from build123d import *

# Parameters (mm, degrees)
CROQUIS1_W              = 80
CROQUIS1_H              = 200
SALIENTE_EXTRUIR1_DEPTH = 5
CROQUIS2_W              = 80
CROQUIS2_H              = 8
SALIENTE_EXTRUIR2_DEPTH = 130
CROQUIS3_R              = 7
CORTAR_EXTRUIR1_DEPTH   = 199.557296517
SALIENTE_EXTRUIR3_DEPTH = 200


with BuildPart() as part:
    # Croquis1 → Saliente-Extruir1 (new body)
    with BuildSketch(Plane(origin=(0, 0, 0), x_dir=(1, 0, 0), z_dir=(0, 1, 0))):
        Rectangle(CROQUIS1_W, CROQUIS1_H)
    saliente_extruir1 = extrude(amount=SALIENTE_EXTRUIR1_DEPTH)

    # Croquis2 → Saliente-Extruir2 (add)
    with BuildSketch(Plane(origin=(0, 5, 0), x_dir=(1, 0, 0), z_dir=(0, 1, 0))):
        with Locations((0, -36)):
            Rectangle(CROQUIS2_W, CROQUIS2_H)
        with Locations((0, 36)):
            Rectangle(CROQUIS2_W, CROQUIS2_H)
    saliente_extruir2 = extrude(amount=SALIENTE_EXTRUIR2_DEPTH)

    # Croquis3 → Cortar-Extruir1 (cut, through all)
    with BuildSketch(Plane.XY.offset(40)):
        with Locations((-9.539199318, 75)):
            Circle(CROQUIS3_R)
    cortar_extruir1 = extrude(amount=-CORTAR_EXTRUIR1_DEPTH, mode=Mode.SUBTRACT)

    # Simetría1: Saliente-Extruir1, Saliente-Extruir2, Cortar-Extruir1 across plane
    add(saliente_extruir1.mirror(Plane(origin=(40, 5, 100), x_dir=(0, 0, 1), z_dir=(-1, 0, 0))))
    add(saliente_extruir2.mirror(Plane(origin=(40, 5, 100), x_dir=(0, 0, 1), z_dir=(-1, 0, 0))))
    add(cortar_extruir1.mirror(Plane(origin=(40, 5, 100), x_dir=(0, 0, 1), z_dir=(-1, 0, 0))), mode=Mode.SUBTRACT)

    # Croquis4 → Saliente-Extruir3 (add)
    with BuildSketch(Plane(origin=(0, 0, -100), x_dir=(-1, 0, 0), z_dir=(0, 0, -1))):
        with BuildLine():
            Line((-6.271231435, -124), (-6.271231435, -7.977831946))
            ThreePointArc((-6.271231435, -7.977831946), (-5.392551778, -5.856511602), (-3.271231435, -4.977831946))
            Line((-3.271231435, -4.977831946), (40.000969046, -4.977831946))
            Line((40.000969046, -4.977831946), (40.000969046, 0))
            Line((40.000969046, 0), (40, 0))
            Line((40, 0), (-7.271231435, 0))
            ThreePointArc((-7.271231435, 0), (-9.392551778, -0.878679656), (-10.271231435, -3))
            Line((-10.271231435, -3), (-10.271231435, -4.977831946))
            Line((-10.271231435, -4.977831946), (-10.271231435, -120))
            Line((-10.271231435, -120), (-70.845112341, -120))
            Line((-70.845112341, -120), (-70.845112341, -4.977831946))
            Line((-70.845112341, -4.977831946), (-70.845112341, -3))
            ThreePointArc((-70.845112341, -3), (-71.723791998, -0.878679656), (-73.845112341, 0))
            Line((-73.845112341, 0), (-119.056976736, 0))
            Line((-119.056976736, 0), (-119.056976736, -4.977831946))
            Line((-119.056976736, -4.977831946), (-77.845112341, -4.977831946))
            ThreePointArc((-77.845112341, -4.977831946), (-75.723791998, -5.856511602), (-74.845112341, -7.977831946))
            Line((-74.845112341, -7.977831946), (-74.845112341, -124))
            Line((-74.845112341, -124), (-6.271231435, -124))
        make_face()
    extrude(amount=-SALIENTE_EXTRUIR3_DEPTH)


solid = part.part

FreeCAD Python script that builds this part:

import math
import FreeCAD as App
import Part
import Sketcher
from FreeCAD import Vector
Q = App.Units.Quantity


def add_polygon(sketch, points):
    """Adds a closed chain of lines whose ends are joined by coincident constraints."""
    first, n = sketch.GeometryCount, len(points)
    for a, b in zip(points, points[1:] + points[:1]):
        sketch.addGeometry(Part.LineSegment(App.Vector(*a, 0), App.Vector(*b, 0)), False)
    for i in range(n):
        sketch.addConstraint(Sketcher.Constraint("Coincident", first + i, 2, first + (i + 1) % n, 1))

doc = App.newDocument("Part")
params = doc.addObject("Spreadsheet::Sheet", "Params")
for row, (alias, value) in enumerate([
    ("sketch1_width", "80 mm"),
    ("sketch1_height", "200 mm"),
    ("pad1_length", "5 mm"),
    ("sketch2_width", "80 mm"),
    ("sketch2_height", "8 mm"),
    ("pad2_length", "130 mm"),
    ("sketch3_diameter", "14 mm"),
    ("sketch4_radius", "3 mm"),
    ("sketch4_height", "117 mm"),
    ("pad3_length", "200 mm"),
], start=1):
    params.set(f"A{row}", alias)
    params.set(f"B{row}", "=" + value)
    params.setAlias(f"B{row}", alias)

body = doc.addObject("PartDesign::Body", "Body")

sketch1 = body.newObject("Sketcher::SketchObject", "Sketch")
sketch1.AttachmentSupport = (doc.getObject("XZ_Plane"), [""])
sketch1.MapMode = "FlatFace"
add_polygon(sketch1, [(-40, -100), (-40, 100), (40, 100), (40, -100)])
sketch1.addConstraint(Sketcher.Constraint("Vertical", 0))
sketch1.addConstraint(Sketcher.Constraint("Horizontal", 1))
sketch1.addConstraint(Sketcher.Constraint("Vertical", 2))
sketch1.addConstraint(Sketcher.Constraint("Horizontal", 3))
sketch1.addConstraint(Sketcher.Constraint("Symmetric", 0, 2, 2, 2, -1, 1))
sketch1.addConstraint(Sketcher.Constraint("DistanceX", 1, 1, 1, 2, Q("80 mm")))
sketch1.addConstraint(Sketcher.Constraint("DistanceY", 0, 1, 0, 2, Q("200 mm")))
sketch1.setExpression("Constraints[9]", "Params.sketch1_width")
sketch1.setExpression("Constraints[10]", "Params.sketch1_height")
pad1 = body.newObject("PartDesign::Pad", "Pad")
pad1.Profile = sketch1
pad1.setExpression("Length", "Params.pad1_length")
pad1.Reversed = True

sketch2 = body.newObject("Sketcher::SketchObject", "Sketch001")
sketch2.AttachmentSupport = (doc.getObject("XZ_Plane"), [""])
sketch2.MapMode = "FlatFace"
sketch2.AttachmentOffset = App.Placement(Vector(0, 0, -5), App.Rotation())
add_polygon(sketch2, [(-40, 32), (-40, 40), (40, 40), (40, 32)])
add_polygon(sketch2, [(-40, -40), (-40, -32), (40, -32), (40, -40)])
sketch2.addConstraint(Sketcher.Constraint("Vertical", 0))
sketch2.addConstraint(Sketcher.Constraint("Horizontal", 1))
sketch2.addConstraint(Sketcher.Constraint("Vertical", 2))
sketch2.addConstraint(Sketcher.Constraint("Horizontal", 3))
sketch2.addConstraint(Sketcher.Constraint("Vertical", 4))
sketch2.addConstraint(Sketcher.Constraint("Horizontal", 5))
sketch2.addConstraint(Sketcher.Constraint("Vertical", 6))
sketch2.addConstraint(Sketcher.Constraint("Horizontal", 7))
sketch2.addConstraint(Sketcher.Constraint("Symmetric", 2, 2, 4, 2, -1, 1))
sketch2.addConstraint(Sketcher.Constraint("Symmetric", 0, 2, 6, 2, -1, 1))
sketch2.addConstraint(Sketcher.Constraint("Vertical", 3, 2, 4, 2))
sketch2.addConstraint(Sketcher.Constraint("DistanceX", 1, 1, 1, 2, Q("80 mm")))
sketch2.addConstraint(Sketcher.Constraint("DistanceY", 0, 1, 0, 2, Q("8 mm")))
sketch2.addConstraint(Sketcher.Constraint("DistanceY", -1, 1, 0, 2, Q("40 mm")))
sketch2.setExpression("Constraints[19]", "Params.sketch2_width")
sketch2.setExpression("Constraints[20]", "Params.sketch2_height")
pad2 = body.newObject("PartDesign::Pad", "Pad001")
pad2.Profile = sketch2
pad2.setExpression("Length", "Params.pad2_length")
pad2.Reversed = True

sketch3 = body.newObject("Sketcher::SketchObject", "Sketch002")
sketch3.AttachmentSupport = (doc.getObject("XY_Plane"), [""])
sketch3.MapMode = "FlatFace"
sketch3.AttachmentOffset = App.Placement(Vector(0, 0, 40), App.Rotation())
sketch3.addGeometry(Part.Circle(Vector(-10, 75, 0), Vector(0, 0, 1), 7), False)
sketch3.addConstraint(Sketcher.Constraint("Diameter", 0, Q("14 mm")))
sketch3.addConstraint(Sketcher.Constraint("DistanceY", -1, 1, 0, 3, Q("75 mm")))
sketch3.addConstraint(Sketcher.Constraint("DistanceX", 0, 3, -1, 1, Q("9.539199 mm")))
sketch3.setExpression("Constraints[0]", "Params.sketch3_diameter")
pocket1 = body.newObject("PartDesign::Pocket", "Pocket")
pocket1.Profile = sketch3
pocket1.Type = "ThroughAll"
doc.recompute()

datumplane = body.newObject("PartDesign::Plane", "DatumPlane")
datumplane.AttachmentSupport = (doc.getObject("YZ_Plane"), [""])
datumplane.MapMode = "FlatFace"
datumplane.AttachmentOffset = App.Placement(Vector(0, 0, 40), App.Rotation())
mirrored = body.newObject("PartDesign::Mirrored", "Mirrored")
mirrored.Originals = [pad1, pad2, pocket1]
mirrored.MirrorPlane = (datumplane, [""])
body.Tip = mirrored

sketch4 = body.newObject("Sketcher::SketchObject", "Sketch003")
sketch4.AttachmentSupport = (doc.getObject("XY_Plane"), [""])
sketch4.MapMode = "FlatFace"
sketch4.AttachmentOffset = App.Placement(Vector(0, 0, -100), App.Rotation())
sketch4.addGeometry(Part.LineSegment(Vector(6.3, -124, 0), Vector(6.3, -8, 0)), False)
sketch4.addGeometry(Part.ArcOfCircle(Part.Circle(Vector(3.3, -8, 0), Vector(0, 0, 1), 3), math.radians(0), math.radians(90)), False)
sketch4.addGeometry(Part.LineSegment(Vector(3.3, -5, 0), Vector(-40, -5, 0)), False)
sketch4.addGeometry(Part.LineSegment(Vector(-40, -5, 0), Vector(-40, 0, 0)), False)
sketch4.addGeometry(Part.LineSegment(Vector(-40, 0, 0), Vector(7.3, 0, 0)), False)
sketch4.addGeometry(Part.ArcOfCircle(Part.Circle(Vector(7.3, -3, 0), Vector(0, 0, 1), 3), math.radians(0), math.radians(90)), False)
sketch4.addGeometry(Part.LineSegment(Vector(10.3, -3, 0), Vector(10.3, -120, 0)), False)
sketch4.addGeometry(Part.LineSegment(Vector(10.3, -120, 0), Vector(70.8, -120, 0)), False)
sketch4.addGeometry(Part.LineSegment(Vector(70.8, -120, 0), Vector(70.8, -3, 0)), False)
sketch4.addGeometry(Part.ArcOfCircle(Part.Circle(Vector(73.8, -3, 0), Vector(0, 0, 1), 3), math.radians(90), math.radians(180)), False)
sketch4.addGeometry(Part.LineSegment(Vector(73.8, 0, 0), Vector(119.1, 0, 0)), False)
sketch4.addGeometry(Part.LineSegment(Vector(119.1, 0, 0), Vector(119.1, -5, 0)), False)
sketch4.addGeometry(Part.LineSegment(Vector(119.1, -5, 0), Vector(77.8, -5, 0)), False)
sketch4.addGeometry(Part.ArcOfCircle(Part.Circle(Vector(77.8, -8, 0), Vector(0, 0, 1), 3), math.radians(90), math.radians(180)), False)
sketch4.addGeometry(Part.LineSegment(Vector(74.8, -8, 0), Vector(74.8, -124, 0)), False)
sketch4.addGeometry(Part.LineSegment(Vector(74.8, -124, 0), Vector(6.3, -124, 0)), False)
sketch4.addConstraint(Sketcher.Constraint("Tangent", 0, 2, 1, 1))
sketch4.addConstraint(Sketcher.Constraint("Tangent", 1, 2, 2, 1))
sketch4.addConstraint(Sketcher.Constraint("Coincident", 2, 2, 3, 1))
sketch4.addConstraint(Sketcher.Constraint("Coincident", 3, 2, 4, 1))
sketch4.addConstraint(Sketcher.Constraint("Tangent", 4, 2, 5, 2))
sketch4.addConstraint(Sketcher.Constraint("Tangent", 5, 1, 6, 1))
sketch4.addConstraint(Sketcher.Constraint("Coincident", 6, 2, 7, 1))
sketch4.addConstraint(Sketcher.Constraint("Coincident", 7, 2, 8, 1))
sketch4.addConstraint(Sketcher.Constraint("Tangent", 8, 2, 9, 2))
sketch4.addConstraint(Sketcher.Constraint("Tangent", 9, 1, 10, 1))
sketch4.addConstraint(Sketcher.Constraint("Coincident", 10, 2, 11, 1))
sketch4.addConstraint(Sketcher.Constraint("Coincident", 11, 2, 12, 1))
sketch4.addConstraint(Sketcher.Constraint("Tangent", 12, 2, 13, 1))
sketch4.addConstraint(Sketcher.Constraint("Tangent", 13, 2, 14, 1))
sketch4.addConstraint(Sketcher.Constraint("Coincident", 14, 2, 15, 1))
sketch4.addConstraint(Sketcher.Constraint("Coincident", 15, 2, 0, 1))
sketch4.addConstraint(Sketcher.Constraint("Vertical", 0))
sketch4.addConstraint(Sketcher.Constraint("Horizontal", 2))
sketch4.addConstraint(Sketcher.Constraint("Vertical", 3))
sketch4.addConstraint(Sketcher.Constraint("Horizontal", 4))
sketch4.addConstraint(Sketcher.Constraint("Vertical", 6))
sketch4.addConstraint(Sketcher.Constraint("Horizontal", 7))
sketch4.addConstraint(Sketcher.Constraint("Vertical", 8))
sketch4.addConstraint(Sketcher.Constraint("Horizontal", 10))
sketch4.addConstraint(Sketcher.Constraint("Vertical", 11))
sketch4.addConstraint(Sketcher.Constraint("Horizontal", 12))
sketch4.addConstraint(Sketcher.Constraint("Vertical", 14))
sketch4.addConstraint(Sketcher.Constraint("Horizontal", 15))
sketch4.addConstraint(Sketcher.Constraint("Equal", 1, 5))
sketch4.addConstraint(Sketcher.Constraint("Equal", 5, 9))
sketch4.addConstraint(Sketcher.Constraint("Equal", 9, 13))
sketch4.addConstraint(Sketcher.Constraint("PointOnObject", 3, 2, -1))
sketch4.addConstraint(Sketcher.Constraint("PointOnObject", 9, 1, -1))
sketch4.addConstraint(Sketcher.Constraint("Horizontal", 1, 3, 13, 3))
sketch4.addConstraint(Sketcher.Constraint("Radius", 1, Q("3 mm")))
sketch4.addConstraint(Sketcher.Constraint("DistanceY", 6, 2, 6, 1, Q("117 mm")))
sketch4.addConstraint(Sketcher.Constraint("DistanceY", 14, 2, -1, 1, Q("124 mm")))
sketch4.addConstraint(Sketcher.Constraint("DistanceX", 1, 3, 5, 3, Q("4 mm")))
sketch4.addConstraint(Sketcher.Constraint("DistanceX", 9, 3, 13, 3, Q("4 mm")))
sketch4.addConstraint(Sketcher.Constraint("DistanceX", 2, 2, 2, 1, Q("43.2722 mm")))
sketch4.addConstraint(Sketcher.Constraint("DistanceX", 7, 1, 7, 2, Q("60.573881 mm")))
sketch4.addConstraint(Sketcher.Constraint("DistanceY", 0, 1, 0, 2, Q("116.022168 mm")))
sketch4.addConstraint(Sketcher.Constraint("DistanceX", 10, 1, 10, 2, Q("45.211864 mm")))
sketch4.addConstraint(Sketcher.Constraint("DistanceX", -1, 1, 1, 3, Q("3.271231 mm")))
sketch4.setExpression("Constraints[34]", "Params.sketch4_radius")
sketch4.setExpression("Constraints[35]", "Params.sketch4_height")
pad3 = body.newObject("PartDesign::Pad", "Pad002")
pad3.Profile = sketch4
pad3.setExpression("Length", "Params.pad3_length")

doc.recompute()
